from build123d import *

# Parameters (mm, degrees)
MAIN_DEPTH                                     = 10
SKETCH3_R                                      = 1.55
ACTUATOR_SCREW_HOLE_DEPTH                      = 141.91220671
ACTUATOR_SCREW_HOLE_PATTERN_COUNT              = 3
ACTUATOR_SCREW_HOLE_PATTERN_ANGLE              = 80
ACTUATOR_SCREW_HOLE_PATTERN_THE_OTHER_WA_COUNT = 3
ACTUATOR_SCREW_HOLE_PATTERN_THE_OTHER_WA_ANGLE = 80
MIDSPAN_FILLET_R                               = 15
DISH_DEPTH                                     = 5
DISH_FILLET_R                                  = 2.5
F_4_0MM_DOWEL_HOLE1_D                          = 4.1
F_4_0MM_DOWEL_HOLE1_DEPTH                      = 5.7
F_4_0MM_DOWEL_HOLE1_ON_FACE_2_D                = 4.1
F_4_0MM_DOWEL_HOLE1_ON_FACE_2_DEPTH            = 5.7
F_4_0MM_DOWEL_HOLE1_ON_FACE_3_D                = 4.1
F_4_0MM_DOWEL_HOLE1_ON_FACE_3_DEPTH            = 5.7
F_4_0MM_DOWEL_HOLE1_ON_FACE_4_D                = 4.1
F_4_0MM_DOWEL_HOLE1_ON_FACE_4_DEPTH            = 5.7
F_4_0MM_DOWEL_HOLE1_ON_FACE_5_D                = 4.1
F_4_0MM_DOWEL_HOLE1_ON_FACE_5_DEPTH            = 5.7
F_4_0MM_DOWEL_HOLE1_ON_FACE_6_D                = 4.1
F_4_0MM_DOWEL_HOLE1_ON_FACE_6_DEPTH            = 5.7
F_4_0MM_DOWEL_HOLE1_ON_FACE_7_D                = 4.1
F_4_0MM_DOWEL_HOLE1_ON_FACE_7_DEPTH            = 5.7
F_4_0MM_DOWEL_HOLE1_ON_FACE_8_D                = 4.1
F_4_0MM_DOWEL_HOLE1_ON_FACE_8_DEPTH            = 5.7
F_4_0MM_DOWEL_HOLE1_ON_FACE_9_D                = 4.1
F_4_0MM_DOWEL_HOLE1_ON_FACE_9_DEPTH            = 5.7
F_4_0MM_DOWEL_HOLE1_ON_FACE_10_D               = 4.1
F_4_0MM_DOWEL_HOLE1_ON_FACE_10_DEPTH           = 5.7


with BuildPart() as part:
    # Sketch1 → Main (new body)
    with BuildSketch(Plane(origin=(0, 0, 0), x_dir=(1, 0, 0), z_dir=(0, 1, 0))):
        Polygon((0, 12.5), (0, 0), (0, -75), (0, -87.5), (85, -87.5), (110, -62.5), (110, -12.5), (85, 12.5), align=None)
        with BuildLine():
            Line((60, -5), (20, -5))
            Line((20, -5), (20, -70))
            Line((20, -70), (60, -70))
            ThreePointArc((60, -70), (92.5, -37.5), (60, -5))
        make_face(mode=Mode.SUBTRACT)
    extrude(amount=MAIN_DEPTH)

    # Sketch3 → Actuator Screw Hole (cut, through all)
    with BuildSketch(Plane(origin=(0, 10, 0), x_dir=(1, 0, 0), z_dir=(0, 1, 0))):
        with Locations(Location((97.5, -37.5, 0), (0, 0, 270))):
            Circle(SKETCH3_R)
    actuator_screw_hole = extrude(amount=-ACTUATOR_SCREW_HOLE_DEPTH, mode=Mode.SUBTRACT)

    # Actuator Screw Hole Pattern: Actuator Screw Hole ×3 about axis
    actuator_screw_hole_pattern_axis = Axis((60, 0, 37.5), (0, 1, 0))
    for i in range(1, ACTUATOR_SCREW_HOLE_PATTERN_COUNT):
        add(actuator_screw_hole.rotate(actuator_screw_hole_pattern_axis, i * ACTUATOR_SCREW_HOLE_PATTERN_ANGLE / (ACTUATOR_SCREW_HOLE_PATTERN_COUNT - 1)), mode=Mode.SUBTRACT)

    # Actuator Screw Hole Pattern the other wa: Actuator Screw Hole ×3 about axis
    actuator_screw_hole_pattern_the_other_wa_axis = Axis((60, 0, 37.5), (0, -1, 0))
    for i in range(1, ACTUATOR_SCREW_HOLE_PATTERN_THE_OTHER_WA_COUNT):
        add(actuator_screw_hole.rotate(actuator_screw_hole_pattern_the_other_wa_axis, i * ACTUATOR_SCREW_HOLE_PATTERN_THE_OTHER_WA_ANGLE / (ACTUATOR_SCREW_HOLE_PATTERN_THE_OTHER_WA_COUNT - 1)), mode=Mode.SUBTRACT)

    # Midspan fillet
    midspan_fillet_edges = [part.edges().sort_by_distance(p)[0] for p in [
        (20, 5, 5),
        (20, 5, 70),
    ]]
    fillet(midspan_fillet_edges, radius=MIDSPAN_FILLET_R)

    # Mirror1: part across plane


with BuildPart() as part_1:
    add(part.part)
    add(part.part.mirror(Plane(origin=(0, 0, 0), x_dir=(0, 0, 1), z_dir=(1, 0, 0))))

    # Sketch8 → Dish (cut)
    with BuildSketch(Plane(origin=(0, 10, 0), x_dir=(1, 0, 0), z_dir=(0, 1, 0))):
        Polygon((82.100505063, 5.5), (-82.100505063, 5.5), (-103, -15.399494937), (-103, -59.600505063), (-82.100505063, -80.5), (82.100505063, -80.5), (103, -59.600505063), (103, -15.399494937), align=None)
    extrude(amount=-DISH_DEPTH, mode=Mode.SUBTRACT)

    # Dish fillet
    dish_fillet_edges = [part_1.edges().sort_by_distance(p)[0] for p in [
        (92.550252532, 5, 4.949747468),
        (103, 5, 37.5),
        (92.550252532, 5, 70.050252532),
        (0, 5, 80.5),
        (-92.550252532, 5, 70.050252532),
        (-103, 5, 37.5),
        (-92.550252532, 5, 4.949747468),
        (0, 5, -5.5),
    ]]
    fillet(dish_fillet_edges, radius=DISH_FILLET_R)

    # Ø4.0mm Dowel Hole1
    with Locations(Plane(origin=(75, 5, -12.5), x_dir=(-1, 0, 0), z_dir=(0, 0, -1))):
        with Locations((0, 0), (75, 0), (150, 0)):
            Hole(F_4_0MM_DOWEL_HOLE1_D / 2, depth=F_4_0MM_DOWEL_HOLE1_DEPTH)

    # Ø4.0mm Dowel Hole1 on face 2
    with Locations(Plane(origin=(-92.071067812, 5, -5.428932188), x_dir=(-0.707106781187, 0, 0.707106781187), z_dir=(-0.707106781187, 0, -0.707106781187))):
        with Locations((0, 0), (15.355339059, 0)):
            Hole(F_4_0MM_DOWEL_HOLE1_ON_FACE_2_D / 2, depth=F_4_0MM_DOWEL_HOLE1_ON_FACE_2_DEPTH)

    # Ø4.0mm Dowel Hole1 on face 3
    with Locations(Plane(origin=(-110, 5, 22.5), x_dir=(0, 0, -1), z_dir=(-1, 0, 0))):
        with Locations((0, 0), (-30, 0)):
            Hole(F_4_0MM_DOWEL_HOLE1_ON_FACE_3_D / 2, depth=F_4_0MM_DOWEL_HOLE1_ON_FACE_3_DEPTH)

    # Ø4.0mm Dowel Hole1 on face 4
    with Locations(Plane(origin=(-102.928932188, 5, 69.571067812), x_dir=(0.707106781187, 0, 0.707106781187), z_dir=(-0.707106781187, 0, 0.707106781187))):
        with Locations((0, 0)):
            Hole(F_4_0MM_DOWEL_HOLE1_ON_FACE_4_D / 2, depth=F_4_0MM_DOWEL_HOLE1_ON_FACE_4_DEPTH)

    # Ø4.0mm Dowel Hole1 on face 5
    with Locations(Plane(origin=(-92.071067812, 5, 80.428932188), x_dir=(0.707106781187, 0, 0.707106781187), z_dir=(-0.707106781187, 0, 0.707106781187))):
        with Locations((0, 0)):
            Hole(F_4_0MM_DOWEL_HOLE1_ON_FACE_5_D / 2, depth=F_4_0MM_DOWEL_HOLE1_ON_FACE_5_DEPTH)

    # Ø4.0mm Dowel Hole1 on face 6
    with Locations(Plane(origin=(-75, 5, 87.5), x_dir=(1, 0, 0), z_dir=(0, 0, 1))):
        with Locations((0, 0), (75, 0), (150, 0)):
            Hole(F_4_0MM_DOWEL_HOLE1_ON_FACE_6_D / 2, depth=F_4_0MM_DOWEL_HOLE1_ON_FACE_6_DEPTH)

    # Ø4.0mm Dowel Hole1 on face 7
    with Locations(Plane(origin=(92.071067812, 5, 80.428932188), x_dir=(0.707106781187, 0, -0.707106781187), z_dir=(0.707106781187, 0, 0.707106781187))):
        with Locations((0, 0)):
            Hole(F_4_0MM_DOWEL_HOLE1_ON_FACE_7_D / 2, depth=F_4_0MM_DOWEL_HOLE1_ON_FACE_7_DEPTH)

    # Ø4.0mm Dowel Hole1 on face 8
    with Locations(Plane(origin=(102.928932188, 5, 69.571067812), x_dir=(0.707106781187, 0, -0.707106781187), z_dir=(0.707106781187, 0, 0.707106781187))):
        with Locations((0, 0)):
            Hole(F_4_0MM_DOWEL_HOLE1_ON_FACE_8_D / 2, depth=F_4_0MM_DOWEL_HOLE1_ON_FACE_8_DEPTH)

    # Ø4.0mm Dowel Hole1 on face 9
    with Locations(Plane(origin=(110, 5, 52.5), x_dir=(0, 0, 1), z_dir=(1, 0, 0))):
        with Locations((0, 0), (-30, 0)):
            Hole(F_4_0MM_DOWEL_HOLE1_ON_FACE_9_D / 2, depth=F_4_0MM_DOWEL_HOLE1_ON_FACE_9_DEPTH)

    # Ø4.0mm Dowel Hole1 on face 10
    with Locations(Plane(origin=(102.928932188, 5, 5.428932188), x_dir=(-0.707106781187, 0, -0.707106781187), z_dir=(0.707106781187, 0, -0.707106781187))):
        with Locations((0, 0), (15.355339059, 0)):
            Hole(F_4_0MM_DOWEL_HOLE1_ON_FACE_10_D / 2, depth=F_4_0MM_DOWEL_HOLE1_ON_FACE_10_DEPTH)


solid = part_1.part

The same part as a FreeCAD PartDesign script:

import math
import FreeCAD as App
import Part
import Sketcher
from FreeCAD import Vector


def edges_at(feature, points):
    """Names of the edges that pass closest to the given points."""
    edges = feature.Shape.Edges
    near = lambda p: min(range(len(edges)), key=lambda i: edges[i].distToShape(Part.Vertex(*p))[0])
    return sorted({f"Edge{near(p) + 1}" for p in points})

doc = App.newDocument("Part")
body = doc.addObject("PartDesign::Body", "Body")

# Sketch on XZ plane
sketch1 = body.newObject("Sketcher::SketchObject", "Sketch")
sketch1.AttachmentSupport = (doc.getObject("XZ_Plane"), [""])
sketch1.MapMode = "FlatFace"
sketch1.addGeometry(Part.LineSegment(Vector(0, -12, 0), Vector(0, 88, 0)), False)
sketch1.addGeometry(Part.LineSegment(Vector(0, 88, 0), Vector(85, 88, 0)), False)
sketch1.addGeometry(Part.LineSegment(Vector(85, 88, 0), Vector(110, 62, 0)), False)
sketch1.addGeometry(Part.LineSegment(Vector(110, 62, 0), Vector(110, 12, 0)), False)
sketch1.addGeometry(Part.LineSegment(Vector(110, 12, 0), Vector(85, -12, 0)), False)
sketch1.addGeometry(Part.LineSegment(Vector(85, -12, 0), Vector(0, -12, 0)), False)
sketch1.addGeometry(Part.LineSegment(Vector(20, 5, 0), Vector(60, 5, 0)), False)
sketch1.addGeometry(Part.ArcOfCircle(Part.Circle(Vector(60, 38, 0), Vector(0, 0, 1), 32), math.radians(-90), math.radians(90)), False)
sketch1.addGeometry(Part.LineSegment(Vector(60, 70, 0), Vector(20, 70, 0)), False)
sketch1.addGeometry(Part.LineSegment(Vector(20, 70, 0), Vector(20, 5, 0)), False)
sketch1.addConstraint(Sketcher.Constraint("Coincident", 0, 2, 1, 1))
sketch1.addConstraint(Sketcher.Constraint("Coincident", 1, 2, 2, 1))
sketch1.addConstraint(Sketcher.Constraint("Coincident", 2, 2, 3, 1))
sketch1.addConstraint(Sketcher.Constraint("Coincident", 3, 2, 4, 1))
sketch1.addConstraint(Sketcher.Constraint("Coincident", 4, 2, 5, 1))
sketch1.addConstraint(Sketcher.Constraint("Coincident", 5, 2, 0, 1))
sketch1.addConstraint(Sketcher.Constraint("Tangent", 6, 2, 7, 1))
sketch1.addConstraint(Sketcher.Constraint("Tangent", 7, 2, 8, 1))
sketch1.addConstraint(Sketcher.Constraint("Coincident", 8, 2, 9, 1))
sketch1.addConstraint(Sketcher.Constraint("Coincident", 9, 2, 6, 1))
sketch1.addConstraint(Sketcher.Constraint("Vertical", 0))
sketch1.addConstraint(Sketcher.Constraint("Horizontal", 1))
sketch1.addConstraint(Sketcher.Constraint("Vertical", 3))
sketch1.addConstraint(Sketcher.Constraint("Horizontal", 5))
sketch1.addConstraint(Sketcher.Constraint("Horizontal", 6))
sketch1.addConstraint(Sketcher.Constraint("Horizontal", 8))
sketch1.addConstraint(Sketcher.Constraint("Vertical", 9))
sketch1.addConstraint(Sketcher.Constraint("PointOnObject", 0, 2, -2))
sketch1.addConstraint(Sketcher.Constraint("Perpendicular", 2, 4))
sketch1.addConstraint(Sketcher.Constraint("Vertical", 1, 2, 4, 2))
sketch1.addConstraint(Sketcher.Constraint("Equal", 2, 4))
sketch1.addConstraint(Sketcher.Constraint("Radius", 7, 32.5))
sketch1.addConstraint(Sketcher.Constraint("DistanceX", 1, 1, 1, 2, 85.0))
sketch1.addConstraint(Sketcher.Constraint("DistanceX", 6, 1, 6, 2, 40.0))
sketch1.addConstraint(Sketcher.Constraint("DistanceY", 0, 1, 0, 2, 100.0))
sketch1.addConstraint(Sketcher.Constraint("DistanceY", 3, 2, 3, 1, 50.0))
sketch1.addConstraint(Sketcher.Constraint("DistanceX", -1, 1, 7, 3, 60.0))
sketch1.addConstraint(Sketcher.Constraint("DistanceY", -1, 1, 6, 2, 5.0))
sketch1.addConstraint(Sketcher.Constraint("DistanceY", 7, 3, 0, 2, 50.0))
pad1 = body.newObject("PartDesign::Pad", "Pad")
pad1.Profile = sketch1
pad1.Length = 10
pad1.Reversed = True

# Sketch on XZ plane
sketch2 = body.newObject("Sketcher::SketchObject", "Sketch001")
sketch2.AttachmentSupport = (doc.getObject("XZ_Plane"), [""])
sketch2.MapMode = "FlatFace"
sketch2.AttachmentOffset = App.Placement(Vector(0, 0, -10), App.Rotation())
sketch2.addGeometry(Part.Circle(Vector(97.5, 37.5, 0), Vector(0, 0, 1), 1.6), False)
sketch2.addConstraint(Sketcher.Constraint("Diameter", 0, 3.1))
sketch2.addConstraint(Sketcher.Constraint("DistanceX", -1, 1, 0, 3, 97.5))
sketch2.addConstraint(Sketcher.Constraint("DistanceY", -1, 1, 0, 3, 37.5))
pocket1 = body.newObject("PartDesign::Pocket", "Pocket")
pocket1.Profile = sketch2
pocket1.Type = "ThroughAll"
pocket1.Reversed = True
doc.recompute()

datumline = body.newObject("PartDesign::Line", "DatumLine")
datumline.Placement = App.Placement(Vector(60, 0, 37.5), App.Rotation(Vector(0, 0, 1), Vector(0, 1, 0)))
polarpattern = body.newObject("PartDesign::PolarPattern", "PolarPattern")
polarpattern.Originals = [pocket1]
polarpattern.Axis = (datumline, [""])
polarpattern.Angle = 80
polarpattern.Occurrences = 3
body.Tip = polarpattern
doc.recompute()

datumline2 = body.newObject("PartDesign::Line", "DatumLine001")
datumline2.Placement = App.Placement(Vector(60, 0, 37.5), App.Rotation(Vector(0, 0, 1), Vector(0, -1, 0)))
polarpattern2 = body.newObject("PartDesign::PolarPattern", "PolarPattern001")
polarpattern2.Originals = [pocket1]
polarpattern2.Axis = (datumline2, [""])
polarpattern2.Angle = 80
polarpattern2.Occurrences = 3
body.Tip = polarpattern2
doc.recompute()

fillet = body.newObject("PartDesign::Fillet", "Fillet")
fillet.Base = (polarpattern2, edges_at(polarpattern2, [(20, 5, 5), (20, 5, 70)]))
fillet.Radius = 15
body2 = doc.addObject("PartDesign::Body", "Body001")
doc.recompute()

body2.BaseFeature = body
doc.recompute()

mirroring = doc.addObject("Part::Mirroring", "Mirroring")
mirroring.Source = body
mirroring.Base = Vector(0, 0, 0)
mirroring.Normal = Vector(1, 0, 0)
body3 = doc.addObject("PartDesign::Body", "Body002")
body3.BaseFeature = mirroring
boolean = body2.newObject("PartDesign::Boolean", "Boolean")
boolean.Type = "Fuse"
boolean.addObjects([body3])
doc.recompute()

# Sketch on XZ plane
sketch3 = body2.newObject("Sketcher::SketchObject", "Sketch002")
sketch3.AttachmentSupport = (doc.getObject("XZ_Plane001"), [""])
sketch3.MapMode = "FlatFace"
sketch3.AttachmentOffset = App.Placement(Vector(0, 0, -10), App.Rotation())
sketch3.addGeometry(Part.LineSegment(Vector(82, -6, 0), Vector(-82, -6, 0)), False)
sketch3.addGeometry(Part.LineSegment(Vector(-82, -6, 0), Vector(-103, 15, 0)), False)
sketch3.addGeometry(Part.LineSegment(Vector(-103, 15, 0), Vector(-103, 60, 0)), False)
sketch3.addGeometry(Part.LineSegment(Vector(-103, 60, 0), Vector(-82, 80, 0)), False)
sketch3.addGeometry(Part.LineSegment(Vector(-82, 80, 0), Vector(82, 80, 0)), False)
sketch3.addGeometry(Part.LineSegment(Vector(82, 80, 0), Vector(103, 60, 0)), False)
sketch3.addGeometry(Part.LineSegment(Vector(103, 60, 0), Vector(103, 15, 0)), False)
sketch3.addGeometry(Part.LineSegment(Vector(103, 15, 0), Vector(82, -6, 0)), False)
sketch3.addConstraint(Sketcher.Constraint("Coincident", 0, 2, 1, 1))
sketch3.addConstraint(Sketcher.Constraint("Coincident", 1, 2, 2, 1))
sketch3.addConstraint(Sketcher.Constraint("Coincident", 2, 2, 3, 1))
sketch3.addConstraint(Sketcher.Constraint("Coincident", 3, 2, 4, 1))
sketch3.addConstraint(Sketcher.Constraint("Coincident", 4, 2, 5, 1))
sketch3.addConstraint(Sketcher.Constraint("Coincident", 5, 2, 6, 1))
sketch3.addConstraint(Sketcher.Constraint("Coincident", 6, 2, 7, 1))
sketch3.addConstraint(Sketcher.Constraint("Coincident", 7, 2, 0, 1))
sketch3.addConstraint(Sketcher.Constraint("Horizontal", 0))
sketch3.addConstraint(Sketcher.Constraint("Vertical", 2))
sketch3.addConstraint(Sketcher.Constraint("Horizontal", 4))
sketch3.addConstraint(Sketcher.Constraint("Vertical", 6))
sketch3.addConstraint(Sketcher.Constraint("Symmetric", 2, 2, 5, 2, -2))
sketch3.addConstraint(Sketcher.Constraint("Perpendicular", 1, 3))
sketch3.addConstraint(Sketcher.Constraint("Perpendicular", 3, 5))
sketch3.addConstraint(Sketcher.Constraint("Perpendicular", 5, 7))
sketch3.addConstraint(Sketcher.Constraint("Horizontal", 1, 2, 6, 2))
sketch3.addConstraint(Sketcher.Constraint("Vertical", 0, 2, 3, 2))
sketch3.addConstraint(Sketcher.Constraint("Vertical", 4, 2, 7, 2))
sketch3.addConstraint(Sketcher.Constraint("DistanceX", 1, 2, -1, 1, 103.0))
sketch3.addConstraint(Sketcher.Constraint("DistanceY", 0, 2, 3, 2, 86.0))
sketch3.addConstraint(Sketcher.Constraint("DistanceY", 0, 2, -1, 1, 5.5))
sketch3.addConstraint(Sketcher.Constraint("DistanceX", 0, 2, 0, 1, 164.20101))
pocket2 = body2.newObject("PartDesign::Pocket", "Pocket001")
pocket2.Profile = sketch3
pocket2.Length = 5
pocket2.Reversed = True
doc.recompute()

fillet2 = body2.newObject("PartDesign::Fillet", "Fillet001")
fillet2.Base = (pocket2, edges_at(pocket2, [
    (92.55, 5, 4.95),
    (103, 5, 37.5),
    (92.55, 5, 70.05),
    (0, 5, 80.5),
    (-92.55, 5, 70.05),
    (-103, 5, 37.5),
    (-92.55, 5, 4.95),
    (0, 5, -5.5),
]))
fillet2.Radius = 2.5

# Sketch on XY plane
sketch4 = body2.newObject("Sketcher::SketchObject", "Sketch003")
sketch4.AttachmentSupport = (doc.getObject("XY_Plane001"), [""])
sketch4.MapMode = "FlatFace"
sketch4.AttachmentOffset = App.Placement(Vector(0, 0, -12.5), App.Rotation())
sketch4.addGeometry(Part.Circle(Vector(75, 5, 0), Vector(0, 0, 1), 2), False)
sketch4.addGeometry(Part.Circle(Vector(0, 5, 0), Vector(0, 0, 1), 2), False)
sketch4.addGeometry(Part.Circle(Vector(-75, 5, 0), Vector(0, 0, 1), 2), False)
sketch4.addConstraint(Sketcher.Constraint("Equal", 0, 1))
sketch4.addConstraint(Sketcher.Constraint("Equal", 1, 2))
sketch4.addConstraint(Sketcher.Constraint("Symmetric", 0, 3, 2, 3, -2))
sketch4.addConstraint(Sketcher.Constraint("PointOnObject", 1, 3, -2))
sketch4.addConstraint(Sketcher.Constraint("Horizontal", 0, 3, 1, 3))
sketch4.addConstraint(Sketcher.Constraint("Diameter", 0, 4.1))
sketch4.addConstraint(Sketcher.Constraint("DistanceX", -1, 1, 0, 3, 75.0))
sketch4.addConstraint(Sketcher.Constraint("DistanceY", -1, 1, 0, 3, 5.0))
doc.recompute()
hole = body2.newObject("PartDesign::Hole", "Hole")
hole.Profile = sketch4
hole.ThreadType = "None"
hole.Diameter = 4.1
hole.DepthType = "Dimension"
hole.Depth = 5.7
hole.DrillPoint = "Flat"
hole.Reversed = True

# Sketch on an angled plane
sketch5 = body2.newObject("Sketcher::SketchObject", "Sketch004")
sketch5.Placement = App.Placement(Vector(-48.75, 0, -48.75), App.Rotation(Vector(-0.707106781, 0, 0.707106781), Vector(0, 0.999999999, 0), Vector(-0.707106781, 0, -0.707106781), "ZXY"))
sketch5.addGeometry(Part.Circle(Vector(61.3, 5, 0), Vector(0, 0, 1), 2), False)
sketch5.addGeometry(Part.Circle(Vector(76.6, 5, 0), Vector(0, 0, 1), 2), False)
sketch5.addConstraint(Sketcher.Constraint("Equal", 0, 1))
sketch5.addConstraint(Sketcher.Constraint("Horizontal", 0, 3, 1, 3))
sketch5.addConstraint(Sketcher.Constraint("Diameter", 0, 4.1))
sketch5.addConstraint(Sketcher.Constraint("DistanceY", -1, 1, 0, 3, 5.0))
sketch5.addConstraint(Sketcher.Constraint("DistanceX", -1, 1, 0, 3, 61.265242))
sketch5.addConstraint(Sketcher.Constraint("DistanceX", -1, 1, 1, 3, 76.620581))
doc.recompute()
hole2 = body2.newObject("PartDesign::Hole", "Hole001")
hole2.Profile = sketch5
hole2.ThreadType = "None"
hole2.Diameter = 4.1
hole2.DepthType = "Dimension"
hole2.Depth = 5.7
hole2.DrillPoint = "Flat"

# Sketch on YZ plane
sketch6 = body2.newObject("Sketcher::SketchObject", "Sketch005")
sketch6.AttachmentSupport = (doc.getObject("YZ_Plane001"), [""])
sketch6.MapMode = "FlatFace"
sketch6.AttachmentOffset = App.Placement(Vector(0, 0, -110), App.Rotation())
sketch6.addGeometry(Part.Circle(Vector(5, 22.5, 0), Vector(0, 0, 1), 2), False)
sketch6.addGeometry(Part.Circle(Vector(5, 52.5, 0), Vector(0, 0, 1), 2), False)
sketch6.addConstraint(Sketcher.Constraint("Equal", 0, 1))
sketch6.addConstraint(Sketcher.Constraint("Vertical", 0, 3, 1, 3))
sketch6.addConstraint(Sketcher.Constraint("Diameter", 0, 4.1))
sketch6.addConstraint(Sketcher.Constraint("DistanceX", -1, 1, 0, 3, 5.0))
sketch6.addConstraint(Sketcher.Constraint("DistanceY", 0, 3, 1, 3, 30.0))
sketch6.addConstraint(Sketcher.Constraint("DistanceY", -1, 1, 0, 3, 22.5))
doc.recompute()
hole3 = body2.newObject("PartDesign::Hole", "Hole002")
hole3.Profile = sketch6
hole3.ThreadType = "None"
hole3.Diameter = 4.1
hole3.DepthType = "Dimension"
hole3.Depth = 5.7
hole3.DrillPoint = "Flat"
hole3.Reversed = True

# Sketch on an angled plane
sketch7 = body2.newObject("Sketcher::SketchObject", "Sketch006")
sketch7.Placement = App.Placement(Vector(-86.25, 0, 86.25), App.Rotation(Vector(0.707106781, 0, 0.707106781), Vector(0, 0.999999999, 0), Vector(-0.707106781, 0, 0.707106781), "ZXY"))
sketch7.addGeometry(Part.Circle(Vector(-23.6, 5, 0), Vector(0, 0, 1), 2), False)
sketch7.addConstraint(Sketcher.Constraint("Diameter", 0, 4.1))
sketch7.addConstraint(Sketcher.Constraint("DistanceY", -1, 1, 0, 3, 5.0))
sketch7.addConstraint(Sketcher.Constraint("DistanceX", 0, 3, -1, 1, 23.587572))
doc.recompute()
hole4 = body2.newObject("PartDesign::Hole", "Hole003")
hole4.Profile = sketch7
hole4.ThreadType = "None"
hole4.Diameter = 4.1
hole4.DepthType = "Dimension"
hole4.Depth = 5.7
hole4.DrillPoint = "Flat"

# Sketch on an angled plane
sketch8 = body2.newObject("Sketcher::SketchObject", "Sketch007")
sketch8.Placement = App.Placement(Vector(-86.25, 0, 86.25), App.Rotation(Vector(0.707106781, 0, 0.707106781), Vector(0, 0.999999999, 0), Vector(-0.707106781, 0, 0.707106781), "ZXY"))
sketch8.addGeometry(Part.Circle(Vector(-8.2, 5, 0), Vector(0, 0, 1), 2), False)
sketch8.addConstraint(Sketcher.Constraint("Diameter", 0, 4.1))
sketch8.addConstraint(Sketcher.Constraint("DistanceY", -1, 1, 0, 3, 5.0))
sketch8.addConstraint(Sketcher.Constraint("DistanceX", 0, 3, -1, 1, 8.232233))
doc.recompute()
hole5 = body2.newObject("PartDesign::Hole", "Hole004")
hole5.Profile = sketch8
hole5.ThreadType = "None"
hole5.Diameter = 4.1
hole5.DepthType = "Dimension"
hole5.Depth = 5.7
hole5.DrillPoint = "Flat"

# Sketch on XY plane
sketch9 = body2.newObject("Sketcher::SketchObject", "Sketch008")
sketch9.AttachmentSupport = (doc.getObject("XY_Plane001"), [""])
sketch9.MapMode = "FlatFace"
sketch9.AttachmentOffset = App.Placement(Vector(0, 0, 87.5), App.Rotation())
sketch9.addGeometry(Part.Circle(Vector(-75, 5, 0), Vector(0, 0, 1), 2), False)
sketch9.addGeometry(Part.Circle(Vector(0, 5, 0), Vector(0, 0, 1), 2), False)
sketch9.addGeometry(Part.Circle(Vector(75, 5, 0), Vector(0, 0, 1), 2), False)
sketch9.addConstraint(Sketcher.Constraint("Equal", 0, 1))
sketch9.addConstraint(Sketcher.Constraint("Equal", 1, 2))
sketch9.addConstraint(Sketcher.Constraint("Symmetric", 0, 3, 2, 3, -2))
sketch9.addConstraint(Sketcher.Constraint("PointOnObject", 1, 3, -2))
sketch9.addConstraint(Sketcher.Constraint("Horizontal", 0, 3, 1, 3))
sketch9.addConstraint(Sketcher.Constraint("Diameter", 0, 4.1))
sketch9.addConstraint(Sketcher.Constraint("DistanceX", 0, 3, -1, 1, 75.0))
sketch9.addConstraint(Sketcher.Constraint("DistanceY", -1, 1, 0, 3, 5.0))
doc.recompute()
hole6 = body2.newObject("PartDesign::Hole", "Hole005")
hole6.Profile = sketch9
hole6.ThreadType = "None"
hole6.Diameter = 4.1
hole6.DepthType = "Dimension"
hole6.Depth = 5.7
hole6.DrillPoint = "Flat"

# Sketch on an angled plane
sketch10 = body2.newObject("Sketcher::SketchObject", "Sketch009")
sketch10.Placement = App.Placement(Vector(86.25, 0, 86.25), App.Rotation(Vector(0.707106781, 0, -0.707106781), Vector(0, 0.999999999, 0), Vector(0.707106781, 0, 0.707106781), "ZXY"))
sketch10.addGeometry(Part.Circle(Vector(8.2, 5, 0), Vector(0, 0, 1), 2), False)
sketch10.addConstraint(Sketcher.Constraint("Diameter", 0, 4.1))
sketch10.addConstraint(Sketcher.Constraint("DistanceY", -1, 1, 0, 3, 5.0))
sketch10.addConstraint(Sketcher.Constraint("DistanceX", -1, 1, 0, 3, 8.232233))
doc.recompute()
hole7 = body2.newObject("PartDesign::Hole", "Hole006")
hole7.Profile = sketch10
hole7.ThreadType = "None"
hole7.Diameter = 4.1
hole7.DepthType = "Dimension"
hole7.Depth = 5.7
hole7.DrillPoint = "Flat"

# Sketch on an angled plane
sketch11 = body2.newObject("Sketcher::SketchObject", "Sketch010")
sketch11.Placement = App.Placement(Vector(86.25, 0, 86.25), App.Rotation(Vector(0.707106781, 0, -0.707106781), Vector(0, 0.999999999, 0), Vector(0.707106781, 0, 0.707106781), "ZXY"))
sketch11.addGeometry(Part.Circle(Vector(23.6, 5, 0), Vector(0, 0, 1), 2), False)
sketch11.addConstraint(Sketcher.Constraint("Diameter", 0, 4.1))
sketch11.addConstraint(Sketcher.Constraint("DistanceY", -1, 1, 0, 3, 5.0))
sketch11.addConstraint(Sketcher.Constraint("DistanceX", -1, 1, 0, 3, 23.587572))
doc.recompute()
hole8 = body2.newObject("PartDesign::Hole", "Hole007")
hole8.Profile = sketch11
hole8.ThreadType = "None"
hole8.Diameter = 4.1
hole8.DepthType = "Dimension"
hole8.Depth = 5.7
hole8.DrillPoint = "Flat"

# Sketch on YZ plane
sketch12 = body2.newObject("Sketcher::SketchObject", "Sketch011")
sketch12.AttachmentSupport = (doc.getObject("YZ_Plane001"), [""])
sketch12.MapMode = "FlatFace"
sketch12.AttachmentOffset = App.Placement(Vector(0, 0, 110), App.Rotation())
sketch12.addGeometry(Part.Circle(Vector(5, 52.5, 0), Vector(0, 0, 1), 2), False)
sketch12.addGeometry(Part.Circle(Vector(5, 22.5, 0), Vector(0, 0, 1), 2), False)
sketch12.addConstraint(Sketcher.Constraint("Equal", 0, 1))
sketch12.addConstraint(Sketcher.Constraint("Vertical", 0, 3, 1, 3))
sketch12.addConstraint(Sketcher.Constraint("Diameter", 0, 4.1))
sketch12.addConstraint(Sketcher.Constraint("DistanceX", -1, 1, 0, 3, 5.0))
sketch12.addConstraint(Sketcher.Constraint("DistanceY", 1, 3, 0, 3, 30.0))
sketch12.addConstraint(Sketcher.Constraint("DistanceY", -1, 1, 0, 3, 52.5))
doc.recompute()
hole9 = body2.newObject("PartDesign::Hole", "Hole008")
hole9.Profile = sketch12
hole9.ThreadType = "None"
hole9.Diameter = 4.1
hole9.DepthType = "Dimension"
hole9.Depth = 5.7
hole9.DrillPoint = "Flat"

# Sketch on an angled plane
sketch13 = body2.newObject("Sketcher::SketchObject", "Sketch012")
sketch13.Placement = App.Placement(Vector(48.75, 0, -48.75), App.Rotation(Vector(-0.707106781, 0, -0.707106781), Vector(0, 0.999999999, 0), Vector(0.707106781, 0, -0.707106781), "ZXY"))
sketch13.addGeometry(Part.Circle(Vector(-76.6, 5, 0), Vector(0, 0, 1), 2), False)
sketch13.addGeometry(Part.Circle(Vector(-61.3, 5, 0), Vector(0, 0, 1), 2), False)
sketch13.addConstraint(Sketcher.Constraint("Equal", 0, 1))
sketch13.addConstraint(Sketcher.Constraint("Horizontal", 0, 3, 1, 3))
sketch13.addConstraint(Sketcher.Constraint("Diameter", 0, 4.1))
sketch13.addConstraint(Sketcher.Constraint("DistanceY", -1, 1, 0, 3, 5.0))
sketch13.addConstraint(Sketcher.Constraint("DistanceX", 0, 3, -1, 1, 76.620581))
sketch13.addConstraint(Sketcher.Constraint("DistanceX", 1, 3, -1, 1, 61.265242))
doc.recompute()
hole10 = body2.newObject("PartDesign::Hole", "Hole009")
hole10.Profile = sketch13
hole10.ThreadType = "None"
hole10.Diameter = 4.1
hole10.DepthType = "Dimension"
hole10.Depth = 5.7
hole10.DrillPoint = "Flat"
mirroring.Visibility = False

doc.recompute()
